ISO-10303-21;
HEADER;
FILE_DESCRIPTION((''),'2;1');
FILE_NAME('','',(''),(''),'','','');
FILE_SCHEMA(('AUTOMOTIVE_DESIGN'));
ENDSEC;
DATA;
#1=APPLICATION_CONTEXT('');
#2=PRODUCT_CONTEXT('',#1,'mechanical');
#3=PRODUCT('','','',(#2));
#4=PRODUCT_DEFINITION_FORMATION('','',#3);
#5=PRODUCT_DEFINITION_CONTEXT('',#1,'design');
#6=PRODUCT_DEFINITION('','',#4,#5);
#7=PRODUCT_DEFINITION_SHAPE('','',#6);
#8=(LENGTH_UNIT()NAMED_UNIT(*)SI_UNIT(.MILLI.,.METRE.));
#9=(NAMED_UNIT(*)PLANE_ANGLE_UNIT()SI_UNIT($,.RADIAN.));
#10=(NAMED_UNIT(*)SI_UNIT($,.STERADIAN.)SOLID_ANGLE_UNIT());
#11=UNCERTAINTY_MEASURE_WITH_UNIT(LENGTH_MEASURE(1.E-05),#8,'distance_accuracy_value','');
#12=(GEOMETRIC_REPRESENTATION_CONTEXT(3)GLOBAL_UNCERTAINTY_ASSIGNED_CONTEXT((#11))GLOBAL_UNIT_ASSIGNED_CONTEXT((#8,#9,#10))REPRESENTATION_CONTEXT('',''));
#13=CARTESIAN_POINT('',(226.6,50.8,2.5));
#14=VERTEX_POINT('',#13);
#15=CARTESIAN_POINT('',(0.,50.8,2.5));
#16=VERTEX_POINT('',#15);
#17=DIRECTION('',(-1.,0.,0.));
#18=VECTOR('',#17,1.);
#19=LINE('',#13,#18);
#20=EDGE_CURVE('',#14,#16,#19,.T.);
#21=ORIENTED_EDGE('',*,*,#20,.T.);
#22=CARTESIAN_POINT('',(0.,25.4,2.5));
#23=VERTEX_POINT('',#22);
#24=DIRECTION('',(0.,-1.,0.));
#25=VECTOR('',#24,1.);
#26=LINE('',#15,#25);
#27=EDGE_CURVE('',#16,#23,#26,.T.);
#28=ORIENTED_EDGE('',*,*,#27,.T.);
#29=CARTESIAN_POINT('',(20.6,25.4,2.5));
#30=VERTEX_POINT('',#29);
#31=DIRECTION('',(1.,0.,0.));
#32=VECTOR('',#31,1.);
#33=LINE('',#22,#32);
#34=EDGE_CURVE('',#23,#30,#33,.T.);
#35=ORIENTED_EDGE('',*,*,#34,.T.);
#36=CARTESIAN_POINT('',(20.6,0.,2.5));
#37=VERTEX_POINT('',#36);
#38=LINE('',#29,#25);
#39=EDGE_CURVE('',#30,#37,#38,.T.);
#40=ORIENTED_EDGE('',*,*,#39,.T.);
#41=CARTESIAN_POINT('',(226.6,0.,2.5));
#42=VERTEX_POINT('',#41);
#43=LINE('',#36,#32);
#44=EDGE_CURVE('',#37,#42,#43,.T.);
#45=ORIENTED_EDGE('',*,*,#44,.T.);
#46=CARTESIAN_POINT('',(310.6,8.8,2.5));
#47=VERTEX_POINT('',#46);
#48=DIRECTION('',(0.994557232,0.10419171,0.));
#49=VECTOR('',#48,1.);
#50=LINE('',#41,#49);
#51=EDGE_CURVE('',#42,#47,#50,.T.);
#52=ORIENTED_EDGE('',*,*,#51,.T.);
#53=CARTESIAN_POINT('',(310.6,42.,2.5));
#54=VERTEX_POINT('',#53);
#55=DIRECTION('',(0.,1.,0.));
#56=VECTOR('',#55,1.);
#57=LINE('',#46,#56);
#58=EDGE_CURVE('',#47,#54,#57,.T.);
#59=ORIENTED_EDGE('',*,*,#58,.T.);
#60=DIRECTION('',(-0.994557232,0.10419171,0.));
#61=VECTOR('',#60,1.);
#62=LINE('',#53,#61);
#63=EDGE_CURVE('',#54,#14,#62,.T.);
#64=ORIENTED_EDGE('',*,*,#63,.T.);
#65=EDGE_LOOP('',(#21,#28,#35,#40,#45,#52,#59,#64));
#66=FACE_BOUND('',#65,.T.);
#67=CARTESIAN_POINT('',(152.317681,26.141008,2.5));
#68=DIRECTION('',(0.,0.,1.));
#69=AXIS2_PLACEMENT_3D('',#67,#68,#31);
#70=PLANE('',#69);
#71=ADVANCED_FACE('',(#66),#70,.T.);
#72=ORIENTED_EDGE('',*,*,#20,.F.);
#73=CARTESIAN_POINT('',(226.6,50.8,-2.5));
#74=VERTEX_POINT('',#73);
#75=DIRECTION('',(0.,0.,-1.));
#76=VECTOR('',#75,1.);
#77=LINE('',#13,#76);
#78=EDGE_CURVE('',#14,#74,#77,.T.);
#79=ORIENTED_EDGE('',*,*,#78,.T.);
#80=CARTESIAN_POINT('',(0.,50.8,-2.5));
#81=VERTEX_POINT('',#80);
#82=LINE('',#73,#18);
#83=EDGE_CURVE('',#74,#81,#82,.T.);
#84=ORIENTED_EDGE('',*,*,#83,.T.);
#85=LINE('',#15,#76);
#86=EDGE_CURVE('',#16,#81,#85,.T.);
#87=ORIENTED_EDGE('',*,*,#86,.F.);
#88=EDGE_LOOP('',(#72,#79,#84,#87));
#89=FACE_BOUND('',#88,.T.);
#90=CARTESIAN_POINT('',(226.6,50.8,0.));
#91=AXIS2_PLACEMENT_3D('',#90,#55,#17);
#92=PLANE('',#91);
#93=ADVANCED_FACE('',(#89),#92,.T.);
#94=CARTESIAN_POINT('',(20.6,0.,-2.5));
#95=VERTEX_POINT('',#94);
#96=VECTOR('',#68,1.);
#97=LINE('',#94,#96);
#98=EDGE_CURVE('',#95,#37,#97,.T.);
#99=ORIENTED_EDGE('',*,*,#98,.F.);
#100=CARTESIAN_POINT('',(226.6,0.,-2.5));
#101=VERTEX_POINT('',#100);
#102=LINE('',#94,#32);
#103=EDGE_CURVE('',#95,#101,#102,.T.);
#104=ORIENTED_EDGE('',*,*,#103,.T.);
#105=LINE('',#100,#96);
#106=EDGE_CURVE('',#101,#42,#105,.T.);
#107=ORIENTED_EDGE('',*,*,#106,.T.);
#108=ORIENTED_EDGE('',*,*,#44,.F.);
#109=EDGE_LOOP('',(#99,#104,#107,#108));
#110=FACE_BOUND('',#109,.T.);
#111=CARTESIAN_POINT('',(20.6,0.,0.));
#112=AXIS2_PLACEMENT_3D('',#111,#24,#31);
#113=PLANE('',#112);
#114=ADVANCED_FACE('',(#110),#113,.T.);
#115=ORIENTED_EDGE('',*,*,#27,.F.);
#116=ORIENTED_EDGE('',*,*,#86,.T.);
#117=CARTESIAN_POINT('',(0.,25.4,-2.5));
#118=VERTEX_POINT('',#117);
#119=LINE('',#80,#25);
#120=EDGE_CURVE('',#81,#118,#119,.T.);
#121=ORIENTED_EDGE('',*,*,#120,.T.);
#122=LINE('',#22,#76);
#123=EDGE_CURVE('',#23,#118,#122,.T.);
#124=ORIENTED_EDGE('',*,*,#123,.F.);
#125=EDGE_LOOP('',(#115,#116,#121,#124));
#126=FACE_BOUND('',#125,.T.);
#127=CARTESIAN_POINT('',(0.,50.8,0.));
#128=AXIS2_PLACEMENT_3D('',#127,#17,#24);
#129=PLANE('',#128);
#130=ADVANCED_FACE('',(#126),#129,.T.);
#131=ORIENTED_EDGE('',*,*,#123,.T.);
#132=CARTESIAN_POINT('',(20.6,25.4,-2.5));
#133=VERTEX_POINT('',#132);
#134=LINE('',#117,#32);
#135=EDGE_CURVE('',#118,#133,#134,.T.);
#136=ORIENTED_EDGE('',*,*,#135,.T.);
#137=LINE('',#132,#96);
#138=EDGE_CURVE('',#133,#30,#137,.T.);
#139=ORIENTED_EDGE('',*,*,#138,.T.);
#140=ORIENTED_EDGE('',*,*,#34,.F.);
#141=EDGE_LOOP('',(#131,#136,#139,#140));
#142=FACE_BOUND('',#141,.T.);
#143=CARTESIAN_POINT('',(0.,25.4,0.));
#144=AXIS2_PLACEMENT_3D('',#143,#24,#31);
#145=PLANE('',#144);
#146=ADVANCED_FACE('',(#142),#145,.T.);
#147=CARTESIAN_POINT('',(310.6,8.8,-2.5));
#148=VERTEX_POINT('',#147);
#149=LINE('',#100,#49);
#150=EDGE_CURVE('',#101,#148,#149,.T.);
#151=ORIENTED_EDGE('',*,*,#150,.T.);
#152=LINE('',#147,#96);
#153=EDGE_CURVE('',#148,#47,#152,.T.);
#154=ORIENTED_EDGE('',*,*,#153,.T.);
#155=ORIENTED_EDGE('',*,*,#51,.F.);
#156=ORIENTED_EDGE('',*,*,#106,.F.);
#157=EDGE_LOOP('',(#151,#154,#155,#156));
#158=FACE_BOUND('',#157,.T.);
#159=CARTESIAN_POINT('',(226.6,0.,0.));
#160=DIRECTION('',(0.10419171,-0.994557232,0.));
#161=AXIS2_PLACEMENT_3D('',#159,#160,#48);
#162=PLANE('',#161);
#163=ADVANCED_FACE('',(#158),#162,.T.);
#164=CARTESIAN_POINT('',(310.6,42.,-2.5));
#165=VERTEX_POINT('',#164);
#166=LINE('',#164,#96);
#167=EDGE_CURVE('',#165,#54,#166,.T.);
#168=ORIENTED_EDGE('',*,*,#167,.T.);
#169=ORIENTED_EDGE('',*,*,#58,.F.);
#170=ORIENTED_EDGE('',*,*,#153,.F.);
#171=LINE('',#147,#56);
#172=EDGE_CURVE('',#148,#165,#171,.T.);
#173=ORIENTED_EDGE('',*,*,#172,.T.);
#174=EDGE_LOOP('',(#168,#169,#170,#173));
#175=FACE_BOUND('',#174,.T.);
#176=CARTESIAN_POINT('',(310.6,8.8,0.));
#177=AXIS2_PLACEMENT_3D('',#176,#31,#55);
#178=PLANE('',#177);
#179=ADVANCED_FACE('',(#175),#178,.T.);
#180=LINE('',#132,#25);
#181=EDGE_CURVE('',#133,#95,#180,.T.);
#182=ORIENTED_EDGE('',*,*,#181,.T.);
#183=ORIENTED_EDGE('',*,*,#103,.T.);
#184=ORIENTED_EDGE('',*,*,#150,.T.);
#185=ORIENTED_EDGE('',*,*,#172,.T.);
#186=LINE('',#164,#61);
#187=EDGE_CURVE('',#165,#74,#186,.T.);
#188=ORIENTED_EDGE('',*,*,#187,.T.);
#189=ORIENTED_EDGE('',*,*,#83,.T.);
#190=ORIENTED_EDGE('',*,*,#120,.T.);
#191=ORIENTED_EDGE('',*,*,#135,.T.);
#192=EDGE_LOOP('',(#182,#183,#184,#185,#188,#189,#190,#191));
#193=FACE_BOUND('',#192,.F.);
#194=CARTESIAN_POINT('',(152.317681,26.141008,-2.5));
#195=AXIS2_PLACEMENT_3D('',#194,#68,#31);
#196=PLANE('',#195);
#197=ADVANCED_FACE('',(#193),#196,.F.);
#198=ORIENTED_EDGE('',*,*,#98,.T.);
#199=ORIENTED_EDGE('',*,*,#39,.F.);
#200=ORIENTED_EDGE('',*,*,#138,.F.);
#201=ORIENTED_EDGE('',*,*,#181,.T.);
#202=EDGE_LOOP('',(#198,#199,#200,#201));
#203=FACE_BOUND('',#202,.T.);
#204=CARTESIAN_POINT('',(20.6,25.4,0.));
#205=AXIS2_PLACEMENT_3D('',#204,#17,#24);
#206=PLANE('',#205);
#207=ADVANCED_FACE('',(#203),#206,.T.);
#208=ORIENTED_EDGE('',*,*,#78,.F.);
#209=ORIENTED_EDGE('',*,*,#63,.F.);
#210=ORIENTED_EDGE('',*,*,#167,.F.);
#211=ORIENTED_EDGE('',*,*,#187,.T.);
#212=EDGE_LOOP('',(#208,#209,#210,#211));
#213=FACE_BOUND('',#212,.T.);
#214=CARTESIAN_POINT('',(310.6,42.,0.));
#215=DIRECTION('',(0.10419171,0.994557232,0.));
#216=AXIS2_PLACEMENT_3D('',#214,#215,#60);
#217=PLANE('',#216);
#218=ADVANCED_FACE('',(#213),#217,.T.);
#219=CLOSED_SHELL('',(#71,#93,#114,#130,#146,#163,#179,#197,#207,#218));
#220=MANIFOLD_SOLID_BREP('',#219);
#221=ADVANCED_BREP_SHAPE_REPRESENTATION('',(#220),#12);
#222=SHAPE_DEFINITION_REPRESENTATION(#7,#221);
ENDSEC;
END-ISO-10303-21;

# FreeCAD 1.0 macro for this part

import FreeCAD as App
import Part
import Sketcher
from FreeCAD import Vector


def add_polygon(sketch, points):
    """Adds a closed chain of lines whose ends are joined by coincident constraints."""
    first, n = sketch.GeometryCount, len(points)
    for a, b in zip(points, points[1:] + points[:1]):
        sketch.addGeometry(Part.LineSegment(App.Vector(*a, 0), App.Vector(*b, 0)), False)
    for i in range(n):
        sketch.addConstraint(Sketcher.Constraint("Coincident", first + i, 2, first + (i + 1) % n, 1))

doc = App.newDocument("Part")
params = doc.addObject("Spreadsheet::Sheet", "Params")
for row, (alias, value) in enumerate([
    ("sketch1_width", "206 mm"),
    ("sketch1_width2", "20.6 mm"),
    ("sketch1_height", "25.4 mm"),
    ("sketch1_height2", "33.2 mm"),
    ("pad1_length", "5 mm"),
], start=1):
    params.set(f"A{row}", alias)
    params.set(f"B{row}", "=" + value)
    params.setAlias(f"B{row}", alias)

body = doc.addObject("PartDesign::Body", "Body")

sketch1 = body.newObject("Sketcher::SketchObject", "Sketch")
sketch1.AttachmentSupport = (doc.getObject("XY_Plane"), [""])
sketch1.MapMode = "FlatFace"
add_polygon(sketch1, [(0, 25), (21, 25), (21, 0), (227, 0), (311, 9), (311, 42), (227, 51), (0, 51)])
sketch1.addConstraint([
    Sketcher.Constraint("Horizontal", 0),
    Sketcher.Constraint("Vertical", 1),
    Sketcher.Constraint("Horizontal", 2),
    Sketcher.Constraint("Vertical", 4),
    Sketcher.Constraint("Horizontal", 6),
    Sketcher.Constraint("Vertical", 7),
    Sketcher.Constraint("PointOnObject", 1, 2, -1),
    Sketcher.Constraint("PointOnObject", 6, 2, -2),
    Sketcher.Constraint("Vertical", 2, 2, 5, 2),
    Sketcher.Constraint("Equal", 1, 7),
    Sketcher.Constraint("Equal", 3, 5),
    Sketcher.Constraint("DistanceX", 2, 1, 2, 2, 206.0),
    Sketcher.Constraint("DistanceX", 0, 1, 0, 2, 20.6),
    Sketcher.Constraint("DistanceY", 1, 2, 1, 1, 25.4),
    Sketcher.Constraint("DistanceY", 4, 1, 4, 2, 33.2),
    Sketcher.Constraint("DistanceX", 2, 2, 3, 2, 84.0),
])
sketch1.setExpression("Constraints[19]", "Params.sketch1_width")
sketch1.setExpression("Constraints[20]", "Params.sketch1_width2")
sketch1.setExpression("Constraints[21]", "Params.sketch1_height")
sketch1.setExpression("Constraints[22]", "Params.sketch1_height2")
pad1 = body.newObject("PartDesign::Pad", "Pad")
pad1.Profile = sketch1
pad1.setExpression("Length", "Params.pad1_length")
pad1.Midplane = True

doc.recompute()
